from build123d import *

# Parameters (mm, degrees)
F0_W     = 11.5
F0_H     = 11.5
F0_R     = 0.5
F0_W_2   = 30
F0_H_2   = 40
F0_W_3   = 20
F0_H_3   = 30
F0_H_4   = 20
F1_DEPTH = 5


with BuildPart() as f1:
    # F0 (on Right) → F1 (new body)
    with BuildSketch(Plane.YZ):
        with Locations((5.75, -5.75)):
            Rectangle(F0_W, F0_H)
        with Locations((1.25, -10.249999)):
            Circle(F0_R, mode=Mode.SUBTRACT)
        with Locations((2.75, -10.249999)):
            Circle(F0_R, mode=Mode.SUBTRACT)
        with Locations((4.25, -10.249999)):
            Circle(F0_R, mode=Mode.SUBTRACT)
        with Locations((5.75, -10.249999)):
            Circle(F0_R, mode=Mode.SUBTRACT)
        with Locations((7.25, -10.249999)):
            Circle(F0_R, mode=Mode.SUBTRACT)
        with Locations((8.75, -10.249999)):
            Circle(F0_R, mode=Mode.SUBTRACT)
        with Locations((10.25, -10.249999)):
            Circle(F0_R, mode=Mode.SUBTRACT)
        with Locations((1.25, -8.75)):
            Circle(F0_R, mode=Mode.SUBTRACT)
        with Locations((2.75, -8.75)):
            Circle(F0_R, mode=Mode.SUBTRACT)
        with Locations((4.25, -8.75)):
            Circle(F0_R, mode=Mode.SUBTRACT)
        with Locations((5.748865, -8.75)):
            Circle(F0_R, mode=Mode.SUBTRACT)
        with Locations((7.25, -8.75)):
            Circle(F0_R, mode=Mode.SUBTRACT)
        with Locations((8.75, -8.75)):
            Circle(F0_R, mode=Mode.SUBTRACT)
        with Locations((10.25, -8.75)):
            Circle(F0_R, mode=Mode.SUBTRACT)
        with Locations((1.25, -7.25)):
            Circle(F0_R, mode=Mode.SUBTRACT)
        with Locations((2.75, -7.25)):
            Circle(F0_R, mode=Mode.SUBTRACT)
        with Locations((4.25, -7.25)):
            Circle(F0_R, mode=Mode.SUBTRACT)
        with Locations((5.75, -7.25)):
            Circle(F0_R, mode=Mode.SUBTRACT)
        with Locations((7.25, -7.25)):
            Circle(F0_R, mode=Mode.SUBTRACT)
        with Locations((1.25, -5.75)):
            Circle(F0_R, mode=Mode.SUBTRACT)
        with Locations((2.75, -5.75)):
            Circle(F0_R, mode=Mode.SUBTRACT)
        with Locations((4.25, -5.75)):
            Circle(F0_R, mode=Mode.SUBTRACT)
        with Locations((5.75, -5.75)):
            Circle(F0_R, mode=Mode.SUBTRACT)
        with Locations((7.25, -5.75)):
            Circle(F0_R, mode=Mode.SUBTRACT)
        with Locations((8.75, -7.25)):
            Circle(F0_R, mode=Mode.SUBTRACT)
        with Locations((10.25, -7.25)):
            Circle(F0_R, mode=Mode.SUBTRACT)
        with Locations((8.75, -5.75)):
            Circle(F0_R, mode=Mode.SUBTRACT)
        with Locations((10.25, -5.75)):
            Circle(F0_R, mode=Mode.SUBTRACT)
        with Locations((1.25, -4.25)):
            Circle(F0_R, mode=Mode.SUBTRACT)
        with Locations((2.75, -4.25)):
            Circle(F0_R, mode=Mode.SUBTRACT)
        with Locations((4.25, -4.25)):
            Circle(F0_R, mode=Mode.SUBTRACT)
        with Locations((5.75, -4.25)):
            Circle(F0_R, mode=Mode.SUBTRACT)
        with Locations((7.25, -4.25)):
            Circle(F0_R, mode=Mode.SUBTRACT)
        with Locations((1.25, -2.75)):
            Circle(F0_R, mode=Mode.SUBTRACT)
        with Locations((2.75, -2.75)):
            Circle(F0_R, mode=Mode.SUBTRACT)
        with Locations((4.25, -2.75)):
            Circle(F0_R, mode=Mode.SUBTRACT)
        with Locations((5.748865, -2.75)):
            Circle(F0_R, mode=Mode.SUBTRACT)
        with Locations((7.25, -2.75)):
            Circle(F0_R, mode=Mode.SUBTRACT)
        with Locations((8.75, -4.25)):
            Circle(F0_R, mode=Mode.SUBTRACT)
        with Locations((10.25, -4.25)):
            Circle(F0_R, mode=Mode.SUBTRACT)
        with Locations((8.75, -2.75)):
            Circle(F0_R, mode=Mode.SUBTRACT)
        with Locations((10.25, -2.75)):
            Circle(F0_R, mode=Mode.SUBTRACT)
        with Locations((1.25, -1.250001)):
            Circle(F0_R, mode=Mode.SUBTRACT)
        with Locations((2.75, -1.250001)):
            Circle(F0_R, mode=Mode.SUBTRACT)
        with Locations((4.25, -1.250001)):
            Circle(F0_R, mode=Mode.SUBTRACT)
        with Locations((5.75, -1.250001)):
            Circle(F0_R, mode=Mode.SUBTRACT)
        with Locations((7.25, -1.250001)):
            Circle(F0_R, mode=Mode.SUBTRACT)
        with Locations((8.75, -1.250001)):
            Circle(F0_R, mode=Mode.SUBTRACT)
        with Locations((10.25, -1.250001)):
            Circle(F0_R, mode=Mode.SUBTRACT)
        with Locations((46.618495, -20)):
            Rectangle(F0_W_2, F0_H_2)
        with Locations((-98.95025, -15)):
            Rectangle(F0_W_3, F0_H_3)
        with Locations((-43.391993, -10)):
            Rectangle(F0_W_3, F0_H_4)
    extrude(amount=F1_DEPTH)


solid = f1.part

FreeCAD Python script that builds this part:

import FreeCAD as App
import Part
import Sketcher
from FreeCAD import Vector
Q = App.Units.Quantity


def add_polygon(sketch, points):
    """Adds a closed chain of lines whose ends are joined by coincident constraints."""
    first, n = sketch.GeometryCount, len(points)
    for a, b in zip(points, points[1:] + points[:1]):
        sketch.addGeometry(Part.LineSegment(App.Vector(*a, 0), App.Vector(*b, 0)), False)
    for i in range(n):
        sketch.addConstraint(Sketcher.Constraint("Coincident", first + i, 2, first + (i + 1) % n, 1))

doc = App.newDocument("Part")
body = doc.addObject("PartDesign::Body", "Body")
body.AllowCompound = True

# Sketch on YZ plane
sketch1 = body.newObject("Sketcher::SketchObject", "Sketch")
sketch1.AttachmentSupport = (doc.getObject("YZ_Plane"), [""])
sketch1.MapMode = "FlatFace"
add_polygon(sketch1, [(0, 0), (0, -11.5), (11.5, -11.5), (11.5, 0)])  # lines 0-3
sketch1.addGeometry(Part.Circle(Vector(1.2, -10.2, 0), Vector(0, 0, 1), 0.5), False)  # 4
sketch1.addGeometry(Part.Circle(Vector(2.8, -10.2, 0), Vector(0, 0, 1), 0.5), False)  # 5
sketch1.addGeometry(Part.Circle(Vector(1.2, -8.8, 0), Vector(0, 0, 1), 0.5), False)  # 6
sketch1.addGeometry(Part.Circle(Vector(2.8, -8.8, 0), Vector(0, 0, 1), 0.5), False)  # 7
sketch1.addGeometry(Part.Circle(Vector(4.2, -10.2, 0), Vector(0, 0, 1), 0.5), False)  # 8
sketch1.addGeometry(Part.Circle(Vector(4.2, -8.8, 0), Vector(0, 0, 1), 0.5), False)  # 9
sketch1.addGeometry(Part.Circle(Vector(5.7, -8.8, 0), Vector(0, 0, 1), 0.5), False)  # 10
sketch1.addGeometry(Part.Circle(Vector(1.2, -7.2, 0), Vector(0, 0, 1), 0.5), False)  # 11
sketch1.addGeometry(Part.Circle(Vector(2.8, -7.2, 0), Vector(0, 0, 1), 0.5), False)  # 12
sketch1.addGeometry(Part.Circle(Vector(4.2, -7.2, 0), Vector(0, 0, 1), 0.5), False)  # 13
sketch1.addGeometry(Part.Circle(Vector(5.8, -10.2, 0), Vector(0, 0, 1), 0.5), False)  # 14
sketch1.addGeometry(Part.Circle(Vector(7.2, -10.2, 0), Vector(0, 0, 1), 0.5), False)  # 15
sketch1.addGeometry(Part.Circle(Vector(7.2, -8.8, 0), Vector(0, 0, 1), 0.5), False)  # 16
sketch1.addGeometry(Part.Circle(Vector(8.8, -10.2, 0), Vector(0, 0, 1), 0.5), False)  # 17
sketch1.addGeometry(Part.Circle(Vector(10.2, -10.2, 0), Vector(0, 0, 1), 0.5), False)  # 18
sketch1.addGeometry(Part.Circle(Vector(8.8, -8.8, 0), Vector(0, 0, 1), 0.5), False)  # 19
sketch1.addGeometry(Part.Circle(Vector(10.2, -8.8, 0), Vector(0, 0, 1), 0.5), False)  # 20
sketch1.addGeometry(Part.Circle(Vector(5.8, -7.2, 0), Vector(0, 0, 1), 0.5), False)  # 21
sketch1.addGeometry(Part.Circle(Vector(7.2, -7.2, 0), Vector(0, 0, 1), 0.5), False)  # 22
sketch1.addGeometry(Part.Circle(Vector(8.8, -7.2, 0), Vector(0, 0, 1), 0.5), False)  # 23
sketch1.addGeometry(Part.Circle(Vector(10.2, -7.2, 0), Vector(0, 0, 1), 0.5), False)  # 24
sketch1.addGeometry(Part.Circle(Vector(1.2, -5.8, 0), Vector(0, 0, 1), 0.5), False)  # 25
sketch1.addGeometry(Part.Circle(Vector(2.8, -5.8, 0), Vector(0, 0, 1), 0.5), False)  # 26
sketch1.addGeometry(Part.Circle(Vector(1.2, -4.2, 0), Vector(0, 0, 1), 0.5), False)  # 27
sketch1.addGeometry(Part.Circle(Vector(2.8, -4.2, 0), Vector(0, 0, 1), 0.5), False)  # 28
sketch1.addGeometry(Part.Circle(Vector(4.2, -5.8, 0), Vector(0, 0, 1), 0.5), False)  # 29
sketch1.addGeometry(Part.Circle(Vector(4.2, -4.2, 0), Vector(0, 0, 1), 0.5), False)  # 30
sketch1.addGeometry(Part.Circle(Vector(1.2, -2.8, 0), Vector(0, 0, 1), 0.5), False)  # 31
sketch1.addGeometry(Part.Circle(Vector(2.8, -2.8, 0), Vector(0, 0, 1), 0.5), False)  # 32
sketch1.addGeometry(Part.Circle(Vector(1.2, -1.3, 0), Vector(0, 0, 1), 0.5), False)  # 33
sketch1.addGeometry(Part.Circle(Vector(2.8, -1.3, 0), Vector(0, 0, 1), 0.5), False)  # 34
sketch1.addGeometry(Part.Circle(Vector(4.2, -2.8, 0), Vector(0, 0, 1), 0.5), False)  # 35
sketch1.addGeometry(Part.Circle(Vector(5.7, -2.8, 0), Vector(0, 0, 1), 0.5), False)  # 36
sketch1.addGeometry(Part.Circle(Vector(4.2, -1.3, 0), Vector(0, 0, 1), 0.5), False)  # 37
sketch1.addGeometry(Part.Circle(Vector(5.8, -5.8, 0), Vector(0, 0, 1), 0.5), False)  # 38
sketch1.addGeometry(Part.Circle(Vector(7.2, -5.8, 0), Vector(0, 0, 1), 0.5), False)  # 39
sketch1.addGeometry(Part.Circle(Vector(5.8, -4.2, 0), Vector(0, 0, 1), 0.5), False)  # 40
sketch1.addGeometry(Part.Circle(Vector(7.2, -4.2, 0), Vector(0, 0, 1), 0.5), False)  # 41
sketch1.addGeometry(Part.Circle(Vector(8.8, -5.8, 0), Vector(0, 0, 1), 0.5), False)  # 42
sketch1.addGeometry(Part.Circle(Vector(10.2, -5.8, 0), Vector(0, 0, 1), 0.5), False)  # 43
sketch1.addGeometry(Part.Circle(Vector(8.8, -4.2, 0), Vector(0, 0, 1), 0.5), False)  # 44
sketch1.addGeometry(Part.Circle(Vector(10.2, -4.2, 0), Vector(0, 0, 1), 0.5), False)  # 45
sketch1.addGeometry(Part.Circle(Vector(7.2, -2.8, 0), Vector(0, 0, 1), 0.5), False)  # 46
sketch1.addGeometry(Part.Circle(Vector(5.8, -1.3, 0), Vector(0, 0, 1), 0.5), False)  # 47
sketch1.addGeometry(Part.Circle(Vector(7.2, -1.3, 0), Vector(0, 0, 1), 0.5), False)  # 48
sketch1.addGeometry(Part.Circle(Vector(8.8, -2.8, 0), Vector(0, 0, 1), 0.5), False)  # 49
sketch1.addGeometry(Part.Circle(Vector(10.2, -2.8, 0), Vector(0, 0, 1), 0.5), False)  # 50
sketch1.addGeometry(Part.Circle(Vector(8.8, -1.3, 0), Vector(0, 0, 1), 0.5), False)  # 51
sketch1.addGeometry(Part.Circle(Vector(10.2, -1.3, 0), Vector(0, 0, 1), 0.5), False)  # 52
add_polygon(sketch1, [(31.6, 0), (31.6, -40), (61.6, -40), (61.6, 0)])  # lines 53-56
add_polygon(sketch1, [(-109, 0), (-109, -30), (-89, -30), (-89, 0)])  # lines 57-60
add_polygon(sketch1, [(-53.4, 0), (-53.4, -20), (-33.4, -20), (-33.4, 0)])  # lines 61-64
sketch1.addConstraint([
    Sketcher.Constraint("Vertical", 0),
    Sketcher.Constraint("Horizontal", 1),
    Sketcher.Constraint("Vertical", 2),
    Sketcher.Constraint("Horizontal", 3),
    Sketcher.Constraint("Vertical", 53),
    Sketcher.Constraint("Horizontal", 54),
    Sketcher.Constraint("Vertical", 55),
    Sketcher.Constraint("Horizontal", 56),
    Sketcher.Constraint("Vertical", 57),
    Sketcher.Constraint("Horizontal", 58),
    Sketcher.Constraint("Vertical", 59),
    Sketcher.Constraint("Horizontal", 60),
    Sketcher.Constraint("Vertical", 61),
    Sketcher.Constraint("Horizontal", 62),
    Sketcher.Constraint("Vertical", 63),
    Sketcher.Constraint("Horizontal", 64),
    Sketcher.Constraint("Coincident", 3, 2, -1, 1),
    Sketcher.Constraint("Equal", 4, 5),
    Sketcher.Constraint("Equal", 5, 6),
    Sketcher.Constraint("Equal", 6, 7),
    Sketcher.Constraint("Equal", 7, 8),
    Sketcher.Constraint("Equal", 8, 9),
    Sketcher.Constraint("Equal", 9, 10),
    Sketcher.Constraint("Equal", 10, 11),
    Sketcher.Constraint("Equal", 11, 12),
    Sketcher.Constraint("Equal", 12, 13),
    Sketcher.Constraint("Equal", 13, 14),
    Sketcher.Constraint("Equal", 14, 15),
    Sketcher.Constraint("Equal", 15, 16),
    Sketcher.Constraint("Equal", 16, 17),
    Sketcher.Constraint("Equal", 17, 18),
    Sketcher.Constraint("Equal", 18, 19),
    Sketcher.Constraint("Equal", 19, 20),
    Sketcher.Constraint("Equal", 20, 21),
    Sketcher.Constraint("Equal", 21, 22),
    Sketcher.Constraint("Equal", 22, 23),
    Sketcher.Constraint("Equal", 23, 24),
    Sketcher.Constraint("Equal", 24, 25),
    Sketcher.Constraint("Equal", 25, 26),
    Sketcher.Constraint("Equal", 26, 27),
    Sketcher.Constraint("Equal", 27, 28),
    Sketcher.Constraint("Equal", 28, 29),
    Sketcher.Constraint("Equal", 29, 30),
    Sketcher.Constraint("Equal", 30, 31),
    Sketcher.Constraint("Equal", 31, 32),
    Sketcher.Constraint("Equal", 32, 33),
    Sketcher.Constraint("Equal", 33, 34),
    Sketcher.Constraint("Equal", 34, 35),
    Sketcher.Constraint("Equal", 35, 36),
    Sketcher.Constraint("Equal", 36, 37),
    Sketcher.Constraint("Equal", 37, 38),
    Sketcher.Constraint("Equal", 38, 39),
    Sketcher.Constraint("Equal", 39, 40),
    Sketcher.Constraint("Equal", 40, 41),
    Sketcher.Constraint("Equal", 41, 42),
    Sketcher.Constraint("Equal", 42, 43),
    Sketcher.Constraint("Equal", 43, 44),
    Sketcher.Constraint("Equal", 44, 45),
    Sketcher.Constraint("Equal", 45, 46),
    Sketcher.Constraint("Equal", 46, 47),
    Sketcher.Constraint("Equal", 47, 48),
    Sketcher.Constraint("Equal", 48, 49),
    Sketcher.Constraint("Equal", 49, 50),
    Sketcher.Constraint("Equal", 50, 51),
    Sketcher.Constraint("Equal", 51, 52),
    Sketcher.Constraint("PointOnObject", 55, 2, -1),
    Sketcher.Constraint("PointOnObject", 59, 2, -1),
    Sketcher.Constraint("PointOnObject", 63, 2, -1),
    Sketcher.Constraint("Horizontal", 4, 3, 5, 3),
    Sketcher.Constraint("Horizontal", 6, 3, 7, 3),
    Sketcher.Constraint("Horizontal", 5, 3, 8, 3),
    Sketcher.Constraint("Horizontal", 7, 3, 9, 3),
    Sketcher.Constraint("Horizontal", 9, 3, 10, 3),
    Sketcher.Constraint("Horizontal", 11, 3, 12, 3),
    Sketcher.Constraint("Horizontal", 12, 3, 13, 3),
    Sketcher.Constraint("Horizontal", 8, 3, 14, 3),
    Sketcher.Constraint("Horizontal", 14, 3, 15, 3),
    Sketcher.Constraint("Horizontal", 10, 3, 16, 3),
    Sketcher.Constraint("Horizontal", 15, 3, 17, 3),
    Sketcher.Constraint("Horizontal", 17, 3, 18, 3),
    Sketcher.Constraint("Horizontal", 16, 3, 19, 3),
    Sketcher.Constraint("Horizontal", 19, 3, 20, 3),
    Sketcher.Constraint("Horizontal", 13, 3, 21, 3),
    Sketcher.Constraint("Horizontal", 21, 3, 22, 3),
    Sketcher.Constraint("Horizontal", 22, 3, 23, 3),
    Sketcher.Constraint("Horizontal", 23, 3, 24, 3),
    Sketcher.Constraint("Horizontal", 25, 3, 26, 3),
    Sketcher.Constraint("Horizontal", 27, 3, 28, 3),
    Sketcher.Constraint("Horizontal", 26, 3, 29, 3),
    Sketcher.Constraint("Horizontal", 28, 3, 30, 3),
    Sketcher.Constraint("Horizontal", 31, 3, 32, 3),
    Sketcher.Constraint("Horizontal", 33, 3, 34, 3),
    Sketcher.Constraint("Horizontal", 32, 3, 35, 3),
    Sketcher.Constraint("Horizontal", 35, 3, 36, 3),
    Sketcher.Constraint("Horizontal", 34, 3, 37, 3),
    Sketcher.Constraint("Horizontal", 29, 3, 38, 3),
    Sketcher.Constraint("Horizontal", 38, 3, 39, 3),
    Sketcher.Constraint("Horizontal", 30, 3, 40, 3),
    Sketcher.Constraint("Horizontal", 40, 3, 41, 3),
    Sketcher.Constraint("Horizontal", 39, 3, 42, 3),
    Sketcher.Constraint("Horizontal", 42, 3, 43, 3),
    Sketcher.Constraint("Horizontal", 41, 3, 44, 3),
    Sketcher.Constraint("Horizontal", 44, 3, 45, 3),
    Sketcher.Constraint("Horizontal", 36, 3, 46, 3),
    Sketcher.Constraint("Horizontal", 37, 3, 47, 3),
    Sketcher.Constraint("Horizontal", 47, 3, 48, 3),
    Sketcher.Constraint("Horizontal", 46, 3, 49, 3),
    Sketcher.Constraint("Horizontal", 49, 3, 50, 3),
    Sketcher.Constraint("Horizontal", 48, 3, 51, 3),
    Sketcher.Constraint("Horizontal", 51, 3, 52, 3),
    Sketcher.Constraint("Vertical", 4, 3, 6, 3),
    Sketcher.Constraint("Vertical", 5, 3, 7, 3),
    Sketcher.Constraint("Vertical", 8, 3, 9, 3),
    Sketcher.Constraint("Vertical", 6, 3, 11, 3),
    Sketcher.Constraint("Vertical", 7, 3, 12, 3),
    Sketcher.Constraint("Vertical", 9, 3, 13, 3),
    Sketcher.Constraint("Vertical", 15, 3, 16, 3),
    Sketcher.Constraint("Vertical", 17, 3, 19, 3),
    Sketcher.Constraint("Vertical", 18, 3, 20, 3),
    Sketcher.Constraint("Vertical", 14, 3, 21, 3),
    Sketcher.Constraint("Vertical", 16, 3, 22, 3),
    Sketcher.Constraint("Vertical", 19, 3, 23, 3),
    Sketcher.Constraint("Vertical", 20, 3, 24, 3),
    Sketcher.Constraint("Vertical", 11, 3, 25, 3),
    Sketcher.Constraint("Vertical", 12, 3, 26, 3),
    Sketcher.Constraint("Vertical", 25, 3, 27, 3),
    Sketcher.Constraint("Vertical", 26, 3, 28, 3),
    Sketcher.Constraint("Vertical", 13, 3, 29, 3),
    Sketcher.Constraint("Vertical", 29, 3, 30, 3),
    Sketcher.Constraint("Vertical", 27, 3, 31, 3),
    Sketcher.Constraint("Vertical", 28, 3, 32, 3),
    Sketcher.Constraint("Vertical", 31, 3, 33, 3),
    Sketcher.Constraint("Vertical", 32, 3, 34, 3),
    Sketcher.Constraint("Vertical", 30, 3, 35, 3),
    Sketcher.Constraint("Vertical", 10, 3, 36, 3),
    Sketcher.Constraint("Vertical", 35, 3, 37, 3),
    Sketcher.Constraint("Vertical", 21, 3, 38, 3),
    Sketcher.Constraint("Vertical", 22, 3, 39, 3),
    Sketcher.Constraint("Vertical", 38, 3, 40, 3),
    Sketcher.Constraint("Vertical", 39, 3, 41, 3),
    Sketcher.Constraint("Vertical", 23, 3, 42, 3),
    Sketcher.Constraint("Vertical", 24, 3, 43, 3),
    Sketcher.Constraint("Vertical", 42, 3, 44, 3),
    Sketcher.Constraint("Vertical", 43, 3, 45, 3),
    Sketcher.Constraint("Vertical", 41, 3, 46, 3),
    Sketcher.Constraint("Vertical", 40, 3, 47, 3),
    Sketcher.Constraint("Vertical", 46, 3, 48, 3),
    Sketcher.Constraint("Vertical", 44, 3, 49, 3),
    Sketcher.Constraint("Vertical", 45, 3, 50, 3),
    Sketcher.Constraint("Vertical", 49, 3, 51, 3),
    Sketcher.Constraint("Vertical", 50, 3, 52, 3),
    Sketcher.Constraint("Equal", 60, 62),
    Sketcher.Constraint("Equal", 3, 0),
    Sketcher.Constraint("Equal", 56, 57),
    Sketcher.Constraint("Equal", 64, 61),
    Sketcher.Constraint("Diameter", 4, Q("1 mm")),
    Sketcher.Constraint("DistanceX", 54, 1, 54, 2, Q("30 mm")),
    Sketcher.Constraint("DistanceX", 58, 1, 58, 2, Q("20 mm")),
    Sketcher.Constraint("DistanceY", 53, 2, 53, 1, Q("40 mm")),
    Sketcher.Constraint("DistanceX", 1, 1, 1, 2, Q("11.5 mm")),
    Sketcher.Constraint("DistanceX", -1, 1, 4, 3, Q("1.25 mm")),
    Sketcher.Constraint("DistanceY", 4, 3, -1, 1, Q("10.249999 mm")),
    Sketcher.Constraint("DistanceX", -1, 1, 5, 3, Q("2.75 mm")),
    Sketcher.Constraint("DistanceY", 6, 3, -1, 1, Q("8.75 mm")),
    Sketcher.Constraint("DistanceX", -1, 1, 8, 3, Q("4.25 mm")),
    Sketcher.Constraint("DistanceY", 11, 3, -1, 1, Q("7.25 mm")),
    Sketcher.Constraint("DistanceX", -1, 1, 14, 3, Q("5.75 mm")),
    Sketcher.Constraint("DistanceX", -1, 1, 15, 3, Q("7.25 mm")),
    Sketcher.Constraint("DistanceX", -1, 1, 17, 3, Q("8.75 mm")),
    Sketcher.Constraint("DistanceX", -1, 1, 18, 3, Q("10.25 mm")),
    Sketcher.Constraint("DistanceY", 25, 3, -1, 1, Q("5.75 mm")),
    Sketcher.Constraint("DistanceY", 27, 3, -1, 1, Q("4.25 mm")),
    Sketcher.Constraint("DistanceY", 31, 3, -1, 1, Q("2.75 mm")),
    Sketcher.Constraint("DistanceY", 33, 3, -1, 1, Q("1.250001 mm")),
    Sketcher.Constraint("DistanceX", 57, 2, -1, 1, Q("108.95025 mm")),
    Sketcher.Constraint("DistanceX", -1, 1, 10, 3, Q("5.748865 mm")),
    Sketcher.Constraint("DistanceX", -1, 1, 53, 2, Q("31.618495 mm")),
    Sketcher.Constraint("DistanceX", 61, 2, -1, 1, Q("53.391993 mm")),
])
pad1 = body.newObject("PartDesign::Pad", "Pad")
pad1.Profile = sketch1
pad1.Length = 5

doc.recompute()
